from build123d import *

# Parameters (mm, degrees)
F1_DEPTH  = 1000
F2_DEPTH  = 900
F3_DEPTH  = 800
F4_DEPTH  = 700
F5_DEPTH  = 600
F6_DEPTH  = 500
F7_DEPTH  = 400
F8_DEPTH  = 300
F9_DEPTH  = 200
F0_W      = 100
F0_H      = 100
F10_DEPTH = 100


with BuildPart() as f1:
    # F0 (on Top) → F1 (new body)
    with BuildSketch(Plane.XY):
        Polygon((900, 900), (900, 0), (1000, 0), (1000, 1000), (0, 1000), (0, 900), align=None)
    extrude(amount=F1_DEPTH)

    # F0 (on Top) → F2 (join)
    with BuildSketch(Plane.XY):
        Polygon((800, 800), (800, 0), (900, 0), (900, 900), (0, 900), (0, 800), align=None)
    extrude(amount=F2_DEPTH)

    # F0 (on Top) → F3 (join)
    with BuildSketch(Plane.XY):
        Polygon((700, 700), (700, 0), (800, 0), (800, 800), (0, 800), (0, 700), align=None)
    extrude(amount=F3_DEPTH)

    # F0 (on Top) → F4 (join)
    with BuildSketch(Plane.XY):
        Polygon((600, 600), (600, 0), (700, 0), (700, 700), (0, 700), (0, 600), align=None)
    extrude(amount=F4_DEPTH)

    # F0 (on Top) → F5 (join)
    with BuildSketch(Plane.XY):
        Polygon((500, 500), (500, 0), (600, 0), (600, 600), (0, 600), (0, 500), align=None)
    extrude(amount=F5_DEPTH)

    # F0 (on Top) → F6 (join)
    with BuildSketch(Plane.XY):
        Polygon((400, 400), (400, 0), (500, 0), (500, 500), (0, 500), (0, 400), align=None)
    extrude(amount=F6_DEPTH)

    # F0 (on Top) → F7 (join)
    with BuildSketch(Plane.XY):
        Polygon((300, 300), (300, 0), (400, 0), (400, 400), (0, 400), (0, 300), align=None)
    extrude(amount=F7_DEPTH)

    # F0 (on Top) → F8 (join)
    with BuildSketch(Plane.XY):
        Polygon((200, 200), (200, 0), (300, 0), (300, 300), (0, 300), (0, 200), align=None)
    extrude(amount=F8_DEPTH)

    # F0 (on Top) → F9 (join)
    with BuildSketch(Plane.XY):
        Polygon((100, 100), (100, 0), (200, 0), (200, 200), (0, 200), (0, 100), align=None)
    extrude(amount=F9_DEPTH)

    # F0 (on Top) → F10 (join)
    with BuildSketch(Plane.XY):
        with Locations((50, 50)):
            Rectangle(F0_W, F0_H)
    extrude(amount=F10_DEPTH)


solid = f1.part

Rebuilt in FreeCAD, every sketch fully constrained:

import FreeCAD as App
import Part
import Sketcher
Q = App.Units.Quantity

doc = App.newDocument("Part")
body = doc.addObject("PartDesign::Body", "Body")

# Sketch on XY plane
sketch1 = doc.addObject("Sketcher::SketchObject", "Sketch")
body.addObject(sketch1)
sketch1.AttachmentSupport = (doc.XY_Plane, [""])
sketch1.MapMode = "FlatFace"
sketch1.addGeometry(Part.LineSegment(App.Vector(900, 900, 0), App.Vector(900, 0, 0)), False)
sketch1.addGeometry(Part.LineSegment(App.Vector(900, 0, 0), App.Vector(1000, 0, 0)), False)
sketch1.addGeometry(Part.LineSegment(App.Vector(1000, 0, 0), App.Vector(1000, 1000, 0)), False)
sketch1.addGeometry(Part.LineSegment(App.Vector(1000, 1000, 0), App.Vector(0, 1000, 0)), False)
sketch1.addGeometry(Part.LineSegment(App.Vector(0, 1000, 0), App.Vector(0, 900, 0)), False)
sketch1.addGeometry(Part.LineSegment(App.Vector(0, 900, 0), App.Vector(900, 900, 0)), False)
sketch1.addConstraint(Sketcher.Constraint("Coincident", 0, 2, 1, 1))
sketch1.addConstraint(Sketcher.Constraint("Coincident", 1, 2, 2, 1))
sketch1.addConstraint(Sketcher.Constraint("Coincident", 2, 2, 3, 1))
sketch1.addConstraint(Sketcher.Constraint("Coincident", 3, 2, 4, 1))
sketch1.addConstraint(Sketcher.Constraint("Coincident", 4, 2, 5, 1))
sketch1.addConstraint(Sketcher.Constraint("Coincident", 5, 2, 0, 1))
sketch1.addConstraint(Sketcher.Constraint("Vertical", 0))
sketch1.addConstraint(Sketcher.Constraint("Horizontal", 1))
sketch1.addConstraint(Sketcher.Constraint("Vertical", 2))
sketch1.addConstraint(Sketcher.Constraint("Horizontal", 3))
sketch1.addConstraint(Sketcher.Constraint("Vertical", 4))
sketch1.addConstraint(Sketcher.Constraint("Horizontal", 5))
sketch1.addConstraint(Sketcher.Constraint("PointOnObject", 0, 2, -1))
sketch1.addConstraint(Sketcher.Constraint("PointOnObject", 3, 2, -2))
sketch1.addConstraint(Sketcher.Constraint("Equal", 5, 0))
sketch1.addConstraint(Sketcher.Constraint("Equal", 3, 2))
sketch1.addConstraint(Sketcher.Constraint("DistanceX", 1, 1, 1, 2, Q("100 mm")))
sketch1.addConstraint(Sketcher.Constraint("DistanceX", 3, 2, 3, 1, Q("1000 mm")))
pad1 = doc.addObject("PartDesign::Pad", "Pad")
body.addObject(pad1)
pad1.Profile = sketch1
pad1.Length = 1000

# Sketch on XY plane
sketch2 = doc.addObject("Sketcher::SketchObject", "Sketch001")
body.addObject(sketch2)
sketch2.AttachmentSupport = (doc.XY_Plane, [""])
sketch2.MapMode = "FlatFace"
sketch2.addGeometry(Part.LineSegment(App.Vector(800, 800, 0), App.Vector(800, 0, 0)), False)
sketch2.addGeometry(Part.LineSegment(App.Vector(800, 0, 0), App.Vector(900, 0, 0)), False)
sketch2.addGeometry(Part.LineSegment(App.Vector(900, 0, 0), App.Vector(900, 900, 0)), False)
sketch2.addGeometry(Part.LineSegment(App.Vector(900, 900, 0), App.Vector(0, 900, 0)), False)
sketch2.addGeometry(Part.LineSegment(App.Vector(0, 900, 0), App.Vector(0, 800, 0)), False)
sketch2.addGeometry(Part.LineSegment(App.Vector(0, 800, 0), App.Vector(800, 800, 0)), False)
sketch2.addConstraint(Sketcher.Constraint("Coincident", 0, 2, 1, 1))
sketch2.addConstraint(Sketcher.Constraint("Coincident", 1, 2, 2, 1))
sketch2.addConstraint(Sketcher.Constraint("Coincident", 2, 2, 3, 1))
sketch2.addConstraint(Sketcher.Constraint("Coincident", 3, 2, 4, 1))
sketch2.addConstraint(Sketcher.Constraint("Coincident", 4, 2, 5, 1))
sketch2.addConstraint(Sketcher.Constraint("Coincident", 5, 2, 0, 1))
sketch2.addConstraint(Sketcher.Constraint("Vertical", 0))
sketch2.addConstraint(Sketcher.Constraint("Horizontal", 1))
sketch2.addConstraint(Sketcher.Constraint("Vertical", 2))
sketch2.addConstraint(Sketcher.Constraint("Horizontal", 3))
sketch2.addConstraint(Sketcher.Constraint("Vertical", 4))
sketch2.addConstraint(Sketcher.Constraint("Horizontal", 5))
sketch2.addConstraint(Sketcher.Constraint("PointOnObject", 0, 2, -1))
sketch2.addConstraint(Sketcher.Constraint("PointOnObject", 3, 2, -2))
sketch2.addConstraint(Sketcher.Constraint("Equal", 5, 0))
sketch2.addConstraint(Sketcher.Constraint("Equal", 3, 2))
sketch2.addConstraint(Sketcher.Constraint("DistanceX", 1, 1, 1, 2, Q("100 mm")))
sketch2.addConstraint(Sketcher.Constraint("DistanceX", 3, 2, 3, 1, Q("900 mm")))
pad2 = doc.addObject("PartDesign::Pad", "Pad001")
body.addObject(pad2)
pad2.Profile = sketch2
pad2.Length = 900

# Sketch on XY plane
sketch3 = doc.addObject("Sketcher::SketchObject", "Sketch002")
body.addObject(sketch3)
sketch3.AttachmentSupport = (doc.XY_Plane, [""])
sketch3.MapMode = "FlatFace"
sketch3.addGeometry(Part.LineSegment(App.Vector(700, 700, 0), App.Vector(700, 0, 0)), False)
sketch3.addGeometry(Part.LineSegment(App.Vector(700, 0, 0), App.Vector(800, 0, 0)), False)
sketch3.addGeometry(Part.LineSegment(App.Vector(800, 0, 0), App.Vector(800, 800, 0)), False)
sketch3.addGeometry(Part.LineSegment(App.Vector(800, 800, 0), App.Vector(0, 800, 0)), False)
sketch3.addGeometry(Part.LineSegment(App.Vector(0, 800, 0), App.Vector(0, 700, 0)), False)
sketch3.addGeometry(Part.LineSegment(App.Vector(0, 700, 0), App.Vector(700, 700, 0)), False)
sketch3.addConstraint(Sketcher.Constraint("Coincident", 0, 2, 1, 1))
sketch3.addConstraint(Sketcher.Constraint("Coincident", 1, 2, 2, 1))
sketch3.addConstraint(Sketcher.Constraint("Coincident", 2, 2, 3, 1))
sketch3.addConstraint(Sketcher.Constraint("Coincident", 3, 2, 4, 1))
sketch3.addConstraint(Sketcher.Constraint("Coincident", 4, 2, 5, 1))
sketch3.addConstraint(Sketcher.Constraint("Coincident", 5, 2, 0, 1))
sketch3.addConstraint(Sketcher.Constraint("Vertical", 0))
sketch3.addConstraint(Sketcher.Constraint("Horizontal", 1))
sketch3.addConstraint(Sketcher.Constraint("Vertical", 2))
sketch3.addConstraint(Sketcher.Constraint("Horizontal", 3))
sketch3.addConstraint(Sketcher.Constraint("Vertical", 4))
sketch3.addConstraint(Sketcher.Constraint("Horizontal", 5))
sketch3.addConstraint(Sketcher.Constraint("PointOnObject", 0, 2, -1))
sketch3.addConstraint(Sketcher.Constraint("PointOnObject", 3, 2, -2))
sketch3.addConstraint(Sketcher.Constraint("Equal", 5, 0))
sketch3.addConstraint(Sketcher.Constraint("Equal", 3, 2))
sketch3.addConstraint(Sketcher.Constraint("DistanceX", 1, 1, 1, 2, Q("100 mm")))
sketch3.addConstraint(Sketcher.Constraint("DistanceX", 3, 2, 3, 1, Q("800 mm")))
pad3 = doc.addObject("PartDesign::Pad", "Pad002")
body.addObject(pad3)
pad3.Profile = sketch3
pad3.Length = 800

# Sketch on XY plane
sketch4 = doc.addObject("Sketcher::SketchObject", "Sketch003")
body.addObject(sketch4)
sketch4.AttachmentSupport = (doc.XY_Plane, [""])
sketch4.MapMode = "FlatFace"
sketch4.addGeometry(Part.LineSegment(App.Vector(600, 600, 0), App.Vector(600, 0, 0)), False)
sketch4.addGeometry(Part.LineSegment(App.Vector(600, 0, 0), App.Vector(700, 0, 0)), False)
sketch4.addGeometry(Part.LineSegment(App.Vector(700, 0, 0), App.Vector(700, 700, 0)), False)
sketch4.addGeometry(Part.LineSegment(App.Vector(700, 700, 0), App.Vector(0, 700, 0)), False)
sketch4.addGeometry(Part.LineSegment(App.Vector(0, 700, 0), App.Vector(0, 600, 0)), False)
sketch4.addGeometry(Part.LineSegment(App.Vector(0, 600, 0), App.Vector(600, 600, 0)), False)
sketch4.addConstraint(Sketcher.Constraint("Coincident", 0, 2, 1, 1))
sketch4.addConstraint(Sketcher.Constraint("Coincident", 1, 2, 2, 1))
sketch4.addConstraint(Sketcher.Constraint("Coincident", 2, 2, 3, 1))
sketch4.addConstraint(Sketcher.Constraint("Coincident", 3, 2, 4, 1))
sketch4.addConstraint(Sketcher.Constraint("Coincident", 4, 2, 5, 1))
sketch4.addConstraint(Sketcher.Constraint("Coincident", 5, 2, 0, 1))
sketch4.addConstraint(Sketcher.Constraint("Vertical", 0))
sketch4.addConstraint(Sketcher.Constraint("Horizontal", 1))
sketch4.addConstraint(Sketcher.Constraint("Vertical", 2))
sketch4.addConstraint(Sketcher.Constraint("Horizontal", 3))
sketch4.addConstraint(Sketcher.Constraint("Vertical", 4))
sketch4.addConstraint(Sketcher.Constraint("Horizontal", 5))
sketch4.addConstraint(Sketcher.Constraint("PointOnObject", 0, 2, -1))
sketch4.addConstraint(Sketcher.Constraint("PointOnObject", 3, 2, -2))
sketch4.addConstraint(Sketcher.Constraint("Equal", 5, 0))
sketch4.addConstraint(Sketcher.Constraint("Equal", 3, 2))
sketch4.addConstraint(Sketcher.Constraint("DistanceX", 1, 1, 1, 2, Q("100 mm")))
sketch4.addConstraint(Sketcher.Constraint("DistanceX", 3, 2, 3, 1, Q("700 mm")))
pad4 = doc.addObject("PartDesign::Pad", "Pad003")
body.addObject(pad4)
pad4.Profile = sketch4
pad4.Length = 700

# Sketch on XY plane
sketch5 = doc.addObject("Sketcher::SketchObject", "Sketch004")
body.addObject(sketch5)
sketch5.AttachmentSupport = (doc.XY_Plane, [""])
sketch5.MapMode = "FlatFace"
sketch5.addGeometry(Part.LineSegment(App.Vector(500, 500, 0), App.Vector(500, 0, 0)), False)
sketch5.addGeometry(Part.LineSegment(App.Vector(500, 0, 0), App.Vector(600, 0, 0)), False)
sketch5.addGeometry(Part.LineSegment(App.Vector(600, 0, 0), App.Vector(600, 600, 0)), False)
sketch5.addGeometry(Part.LineSegment(App.Vector(600, 600, 0), App.Vector(0, 600, 0)), False)
sketch5.addGeometry(Part.LineSegment(App.Vector(0, 600, 0), App.Vector(0, 500, 0)), False)
sketch5.addGeometry(Part.LineSegment(App.Vector(0, 500, 0), App.Vector(500, 500, 0)), False)
sketch5.addConstraint(Sketcher.Constraint("Coincident", 0, 2, 1, 1))
sketch5.addConstraint(Sketcher.Constraint("Coincident", 1, 2, 2, 1))
sketch5.addConstraint(Sketcher.Constraint("Coincident", 2, 2, 3, 1))
sketch5.addConstraint(Sketcher.Constraint("Coincident", 3, 2, 4, 1))
sketch5.addConstraint(Sketcher.Constraint("Coincident", 4, 2, 5, 1))
sketch5.addConstraint(Sketcher.Constraint("Coincident", 5, 2, 0, 1))
sketch5.addConstraint(Sketcher.Constraint("Vertical", 0))
sketch5.addConstraint(Sketcher.Constraint("Horizontal", 1))
sketch5.addConstraint(Sketcher.Constraint("Vertical", 2))
sketch5.addConstraint(Sketcher.Constraint("Horizontal", 3))
sketch5.addConstraint(Sketcher.Constraint("Vertical", 4))
sketch5.addConstraint(Sketcher.Constraint("Horizontal", 5))
sketch5.addConstraint(Sketcher.Constraint("PointOnObject", 0, 2, -1))
sketch5.addConstraint(Sketcher.Constraint("PointOnObject", 3, 2, -2))
sketch5.addConstraint(Sketcher.Constraint("Equal", 5, 0))
sketch5.addConstraint(Sketcher.Constraint("Equal", 3, 2))
sketch5.addConstraint(Sketcher.Constraint("DistanceX", 1, 1, 1, 2, Q("100 mm")))
sketch5.addConstraint(Sketcher.Constraint("DistanceX", 3, 2, 3, 1, Q("600 mm")))
pad5 = doc.addObject("PartDesign::Pad", "Pad004")
body.addObject(pad5)
pad5.Profile = sketch5
pad5.Length = 600

# Sketch on XY plane
sketch6 = doc.addObject("Sketcher::SketchObject", "Sketch005")
body.addObject(sketch6)
sketch6.AttachmentSupport = (doc.XY_Plane, [""])
sketch6.MapMode = "FlatFace"
sketch6.addGeometry(Part.LineSegment(App.Vector(400, 400, 0), App.Vector(400, 0, 0)), False)
sketch6.addGeometry(Part.LineSegment(App.Vector(400, 0, 0), App.Vector(500, 0, 0)), False)
sketch6.addGeometry(Part.LineSegment(App.Vector(500, 0, 0), App.Vector(500, 500, 0)), False)
sketch6.addGeometry(Part.LineSegment(App.Vector(500, 500, 0), App.Vector(0, 500, 0)), False)
sketch6.addGeometry(Part.LineSegment(App.Vector(0, 500, 0), App.Vector(0, 400, 0)), False)
sketch6.addGeometry(Part.LineSegment(App.Vector(0, 400, 0), App.Vector(400, 400, 0)), False)
sketch6.addConstraint(Sketcher.Constraint("Coincident", 0, 2, 1, 1))
sketch6.addConstraint(Sketcher.Constraint("Coincident", 1, 2, 2, 1))
sketch6.addConstraint(Sketcher.Constraint("Coincident", 2, 2, 3, 1))
sketch6.addConstraint(Sketcher.Constraint("Coincident", 3, 2, 4, 1))
sketch6.addConstraint(Sketcher.Constraint("Coincident", 4, 2, 5, 1))
sketch6.addConstraint(Sketcher.Constraint("Coincident", 5, 2, 0, 1))
sketch6.addConstraint(Sketcher.Constraint("Vertical", 0))
sketch6.addConstraint(Sketcher.Constraint("Horizontal", 1))
sketch6.addConstraint(Sketcher.Constraint("Vertical", 2))
sketch6.addConstraint(Sketcher.Constraint("Horizontal", 3))
sketch6.addConstraint(Sketcher.Constraint("Vertical", 4))
sketch6.addConstraint(Sketcher.Constraint("Horizontal", 5))
sketch6.addConstraint(Sketcher.Constraint("PointOnObject", 0, 2, -1))
sketch6.addConstraint(Sketcher.Constraint("PointOnObject", 3, 2, -2))
sketch6.addConstraint(Sketcher.Constraint("Equal", 5, 0))
sketch6.addConstraint(Sketcher.Constraint("Equal", 3, 2))
sketch6.addConstraint(Sketcher.Constraint("DistanceX", 1, 1, 1, 2, Q("100 mm")))
sketch6.addConstraint(Sketcher.Constraint("DistanceX", 3, 2, 3, 1, Q("500 mm")))
pad6 = doc.addObject("PartDesign::Pad", "Pad005")
body.addObject(pad6)
pad6.Profile = sketch6
pad6.Length = 500

# Sketch on XY plane
sketch7 = doc.addObject("Sketcher::SketchObject", "Sketch006")
body.addObject(sketch7)
sketch7.AttachmentSupport = (doc.XY_Plane, [""])
sketch7.MapMode = "FlatFace"
sketch7.addGeometry(Part.LineSegment(App.Vector(300, 300, 0), App.Vector(300, 0, 0)), False)
sketch7.addGeometry(Part.LineSegment(App.Vector(300, 0, 0), App.Vector(400, 0, 0)), False)
sketch7.addGeometry(Part.LineSegment(App.Vector(400, 0, 0), App.Vector(400, 400, 0)), False)
sketch7.addGeometry(Part.LineSegment(App.Vector(400, 400, 0), App.Vector(0, 400, 0)), False)
sketch7.addGeometry(Part.LineSegment(App.Vector(0, 400, 0), App.Vector(0, 300, 0)), False)
sketch7.addGeometry(Part.LineSegment(App.Vector(0, 300, 0), App.Vector(300, 300, 0)), False)
sketch7.addConstraint(Sketcher.Constraint("Coincident", 0, 2, 1, 1))
sketch7.addConstraint(Sketcher.Constraint("Coincident", 1, 2, 2, 1))
sketch7.addConstraint(Sketcher.Constraint("Coincident", 2, 2, 3, 1))
sketch7.addConstraint(Sketcher.Constraint("Coincident", 3, 2, 4, 1))
sketch7.addConstraint(Sketcher.Constraint("Coincident", 4, 2, 5, 1))
sketch7.addConstraint(Sketcher.Constraint("Coincident", 5, 2, 0, 1))
sketch7.addConstraint(Sketcher.Constraint("Vertical", 0))
sketch7.addConstraint(Sketcher.Constraint("Horizontal", 1))
sketch7.addConstraint(Sketcher.Constraint("Vertical", 2))
sketch7.addConstraint(Sketcher.Constraint("Horizontal", 3))
sketch7.addConstraint(Sketcher.Constraint("Vertical", 4))
sketch7.addConstraint(Sketcher.Constraint("Horizontal", 5))
sketch7.addConstraint(Sketcher.Constraint("PointOnObject", 0, 2, -1))
sketch7.addConstraint(Sketcher.Constraint("PointOnObject", 3, 2, -2))
sketch7.addConstraint(Sketcher.Constraint("Equal", 5, 0))
sketch7.addConstraint(Sketcher.Constraint("Equal", 3, 2))
sketch7.addConstraint(Sketcher.Constraint("DistanceX", 1, 1, 1, 2, Q("100 mm")))
sketch7.addConstraint(Sketcher.Constraint("DistanceX", 3, 2, 3, 1, Q("400 mm")))
pad7 = doc.addObject("PartDesign::Pad", "Pad006")
body.addObject(pad7)
pad7.Profile = sketch7
pad7.Length = 400

# Sketch on XY plane
sketch8 = doc.addObject("Sketcher::SketchObject", "Sketch007")
body.addObject(sketch8)
sketch8.AttachmentSupport = (doc.XY_Plane, [""])
sketch8.MapMode = "FlatFace"
sketch8.addGeometry(Part.LineSegment(App.Vector(200, 200, 0), App.Vector(200, 0, 0)), False)
sketch8.addGeometry(Part.LineSegment(App.Vector(200, 0, 0), App.Vector(300, 0, 0)), False)
sketch8.addGeometry(Part.LineSegment(App.Vector(300, 0, 0), App.Vector(300, 300, 0)), False)
sketch8.addGeometry(Part.LineSegment(App.Vector(300, 300, 0), App.Vector(0, 300, 0)), False)
sketch8.addGeometry(Part.LineSegment(App.Vector(0, 300, 0), App.Vector(0, 200, 0)), False)
sketch8.addGeometry(Part.LineSegment(App.Vector(0, 200, 0), App.Vector(200, 200, 0)), False)
sketch8.addConstraint(Sketcher.Constraint("Coincident", 0, 2, 1, 1))
sketch8.addConstraint(Sketcher.Constraint("Coincident", 1, 2, 2, 1))
sketch8.addConstraint(Sketcher.Constraint("Coincident", 2, 2, 3, 1))
sketch8.addConstraint(Sketcher.Constraint("Coincident", 3, 2, 4, 1))
sketch8.addConstraint(Sketcher.Constraint("Coincident", 4, 2, 5, 1))
sketch8.addConstraint(Sketcher.Constraint("Coincident", 5, 2, 0, 1))
sketch8.addConstraint(Sketcher.Constraint("Vertical", 0))
sketch8.addConstraint(Sketcher.Constraint("Horizontal", 1))
sketch8.addConstraint(Sketcher.Constraint("Vertical", 2))
sketch8.addConstraint(Sketcher.Constraint("Horizontal", 3))
sketch8.addConstraint(Sketcher.Constraint("Vertical", 4))
sketch8.addConstraint(Sketcher.Constraint("Horizontal", 5))
sketch8.addConstraint(Sketcher.Constraint("PointOnObject", 0, 2, -1))
sketch8.addConstraint(Sketcher.Constraint("PointOnObject", 3, 2, -2))
sketch8.addConstraint(Sketcher.Constraint("Equal", 5, 0))
sketch8.addConstraint(Sketcher.Constraint("Equal", 3, 2))
sketch8.addConstraint(Sketcher.Constraint("DistanceX", 1, 1, 1, 2, Q("100 mm")))
sketch8.addConstraint(Sketcher.Constraint("DistanceX", 3, 2, 3, 1, Q("300 mm")))
pad8 = doc.addObject("PartDesign::Pad", "Pad007")
body.addObject(pad8)
pad8.Profile = sketch8
pad8.Length = 300

# Sketch on XY plane
sketch9 = doc.addObject("Sketcher::SketchObject", "Sketch008")
body.addObject(sketch9)
sketch9.AttachmentSupport = (doc.XY_Plane, [""])
sketch9.MapMode = "FlatFace"
sketch9.addGeometry(Part.LineSegment(App.Vector(100, 100, 0), App.Vector(100, 0, 0)), False)
sketch9.addGeometry(Part.LineSegment(App.Vector(100, 0, 0), App.Vector(200, 0, 0)), False)
sketch9.addGeometry(Part.LineSegment(App.Vector(200, 0, 0), App.Vector(200, 200, 0)), False)
sketch9.addGeometry(Part.LineSegment(App.Vector(200, 200, 0), App.Vector(0, 200, 0)), False)
sketch9.addGeometry(Part.LineSegment(App.Vector(0, 200, 0), App.Vector(0, 100, 0)), False)
sketch9.addGeometry(Part.LineSegment(App.Vector(0, 100, 0), App.Vector(100, 100, 0)), False)
sketch9.addConstraint(Sketcher.Constraint("Coincident", 0, 2, 1, 1))
sketch9.addConstraint(Sketcher.Constraint("Coincident", 1, 2, 2, 1))
sketch9.addConstraint(Sketcher.Constraint("Coincident", 2, 2, 3, 1))
sketch9.addConstraint(Sketcher.Constraint("Coincident", 3, 2, 4, 1))
sketch9.addConstraint(Sketcher.Constraint("Coincident", 4, 2, 5, 1))
sketch9.addConstraint(Sketcher.Constraint("Coincident", 5, 2, 0, 1))
sketch9.addConstraint(Sketcher.Constraint("Vertical", 0))
sketch9.addConstraint(Sketcher.Constraint("Horizontal", 1))
sketch9.addConstraint(Sketcher.Constraint("Vertical", 2))
sketch9.addConstraint(Sketcher.Constraint("Horizontal", 3))
sketch9.addConstraint(Sketcher.Constraint("Vertical", 4))
sketch9.addConstraint(Sketcher.Constraint("Horizontal", 5))
sketch9.addConstraint(Sketcher.Constraint("PointOnObject", 0, 2, -1))
sketch9.addConstraint(Sketcher.Constraint("PointOnObject", 3, 2, -2))
sketch9.addConstraint(Sketcher.Constraint("Equal", 1, 5))
sketch9.addConstraint(Sketcher.Constraint("Equal", 5, 0))
sketch9.addConstraint(Sketcher.Constraint("Equal", 3, 2))
sketch9.addConstraint(Sketcher.Constraint("DistanceX", 1, 1, 1, 2, Q("100 mm")))
pad9 = doc.addObject("PartDesign::Pad", "Pad008")
body.addObject(pad9)
pad9.Profile = sketch9
pad9.Length = 200

# Sketch on XY plane
sketch10 = doc.addObject("Sketcher::SketchObject", "Sketch009")
body.addObject(sketch10)
sketch10.AttachmentSupport = (doc.XY_Plane, [""])
sketch10.MapMode = "FlatFace"
sketch10.addGeometry(Part.LineSegment(App.Vector(0, 100, 0), App.Vector(0, 0, 0)), False)
sketch10.addGeometry(Part.LineSegment(App.Vector(0, 0, 0), App.Vector(100, 0, 0)), False)
sketch10.addGeometry(Part.LineSegment(App.Vector(100, 0, 0), App.Vector(100, 100, 0)), False)
sketch10.addGeometry(Part.LineSegment(App.Vector(100, 100, 0), App.Vector(0, 100, 0)), False)
sketch10.addConstraint(Sketcher.Constraint("Coincident", 0, 2, 1, 1))
sketch10.addConstraint(Sketcher.Constraint("Coincident", 1, 2, 2, 1))
sketch10.addConstraint(Sketcher.Constraint("Coincident", 2, 2, 3, 1))
sketch10.addConstraint(Sketcher.Constraint("Coincident", 3, 2, 0, 1))
sketch10.addConstraint(Sketcher.Constraint("Vertical", 0))
sketch10.addConstraint(Sketcher.Constraint("Horizontal", 1))
sketch10.addConstraint(Sketcher.Constraint("Vertical", 2))
sketch10.addConstraint(Sketcher.Constraint("Horizontal", 3))
sketch10.addConstraint(Sketcher.Constraint("Coincident", 0, 2, -1, 1))
sketch10.addConstraint(Sketcher.Constraint("Equal", 3, 0))
sketch10.addConstraint(Sketcher.Constraint("DistanceX", 1, 1, 1, 2, Q("100 mm")))
pad10 = doc.addObject("PartDesign::Pad", "Pad009")
body.addObject(pad10)
pad10.Profile = sketch10
pad10.Length = 100

doc.recompute()
